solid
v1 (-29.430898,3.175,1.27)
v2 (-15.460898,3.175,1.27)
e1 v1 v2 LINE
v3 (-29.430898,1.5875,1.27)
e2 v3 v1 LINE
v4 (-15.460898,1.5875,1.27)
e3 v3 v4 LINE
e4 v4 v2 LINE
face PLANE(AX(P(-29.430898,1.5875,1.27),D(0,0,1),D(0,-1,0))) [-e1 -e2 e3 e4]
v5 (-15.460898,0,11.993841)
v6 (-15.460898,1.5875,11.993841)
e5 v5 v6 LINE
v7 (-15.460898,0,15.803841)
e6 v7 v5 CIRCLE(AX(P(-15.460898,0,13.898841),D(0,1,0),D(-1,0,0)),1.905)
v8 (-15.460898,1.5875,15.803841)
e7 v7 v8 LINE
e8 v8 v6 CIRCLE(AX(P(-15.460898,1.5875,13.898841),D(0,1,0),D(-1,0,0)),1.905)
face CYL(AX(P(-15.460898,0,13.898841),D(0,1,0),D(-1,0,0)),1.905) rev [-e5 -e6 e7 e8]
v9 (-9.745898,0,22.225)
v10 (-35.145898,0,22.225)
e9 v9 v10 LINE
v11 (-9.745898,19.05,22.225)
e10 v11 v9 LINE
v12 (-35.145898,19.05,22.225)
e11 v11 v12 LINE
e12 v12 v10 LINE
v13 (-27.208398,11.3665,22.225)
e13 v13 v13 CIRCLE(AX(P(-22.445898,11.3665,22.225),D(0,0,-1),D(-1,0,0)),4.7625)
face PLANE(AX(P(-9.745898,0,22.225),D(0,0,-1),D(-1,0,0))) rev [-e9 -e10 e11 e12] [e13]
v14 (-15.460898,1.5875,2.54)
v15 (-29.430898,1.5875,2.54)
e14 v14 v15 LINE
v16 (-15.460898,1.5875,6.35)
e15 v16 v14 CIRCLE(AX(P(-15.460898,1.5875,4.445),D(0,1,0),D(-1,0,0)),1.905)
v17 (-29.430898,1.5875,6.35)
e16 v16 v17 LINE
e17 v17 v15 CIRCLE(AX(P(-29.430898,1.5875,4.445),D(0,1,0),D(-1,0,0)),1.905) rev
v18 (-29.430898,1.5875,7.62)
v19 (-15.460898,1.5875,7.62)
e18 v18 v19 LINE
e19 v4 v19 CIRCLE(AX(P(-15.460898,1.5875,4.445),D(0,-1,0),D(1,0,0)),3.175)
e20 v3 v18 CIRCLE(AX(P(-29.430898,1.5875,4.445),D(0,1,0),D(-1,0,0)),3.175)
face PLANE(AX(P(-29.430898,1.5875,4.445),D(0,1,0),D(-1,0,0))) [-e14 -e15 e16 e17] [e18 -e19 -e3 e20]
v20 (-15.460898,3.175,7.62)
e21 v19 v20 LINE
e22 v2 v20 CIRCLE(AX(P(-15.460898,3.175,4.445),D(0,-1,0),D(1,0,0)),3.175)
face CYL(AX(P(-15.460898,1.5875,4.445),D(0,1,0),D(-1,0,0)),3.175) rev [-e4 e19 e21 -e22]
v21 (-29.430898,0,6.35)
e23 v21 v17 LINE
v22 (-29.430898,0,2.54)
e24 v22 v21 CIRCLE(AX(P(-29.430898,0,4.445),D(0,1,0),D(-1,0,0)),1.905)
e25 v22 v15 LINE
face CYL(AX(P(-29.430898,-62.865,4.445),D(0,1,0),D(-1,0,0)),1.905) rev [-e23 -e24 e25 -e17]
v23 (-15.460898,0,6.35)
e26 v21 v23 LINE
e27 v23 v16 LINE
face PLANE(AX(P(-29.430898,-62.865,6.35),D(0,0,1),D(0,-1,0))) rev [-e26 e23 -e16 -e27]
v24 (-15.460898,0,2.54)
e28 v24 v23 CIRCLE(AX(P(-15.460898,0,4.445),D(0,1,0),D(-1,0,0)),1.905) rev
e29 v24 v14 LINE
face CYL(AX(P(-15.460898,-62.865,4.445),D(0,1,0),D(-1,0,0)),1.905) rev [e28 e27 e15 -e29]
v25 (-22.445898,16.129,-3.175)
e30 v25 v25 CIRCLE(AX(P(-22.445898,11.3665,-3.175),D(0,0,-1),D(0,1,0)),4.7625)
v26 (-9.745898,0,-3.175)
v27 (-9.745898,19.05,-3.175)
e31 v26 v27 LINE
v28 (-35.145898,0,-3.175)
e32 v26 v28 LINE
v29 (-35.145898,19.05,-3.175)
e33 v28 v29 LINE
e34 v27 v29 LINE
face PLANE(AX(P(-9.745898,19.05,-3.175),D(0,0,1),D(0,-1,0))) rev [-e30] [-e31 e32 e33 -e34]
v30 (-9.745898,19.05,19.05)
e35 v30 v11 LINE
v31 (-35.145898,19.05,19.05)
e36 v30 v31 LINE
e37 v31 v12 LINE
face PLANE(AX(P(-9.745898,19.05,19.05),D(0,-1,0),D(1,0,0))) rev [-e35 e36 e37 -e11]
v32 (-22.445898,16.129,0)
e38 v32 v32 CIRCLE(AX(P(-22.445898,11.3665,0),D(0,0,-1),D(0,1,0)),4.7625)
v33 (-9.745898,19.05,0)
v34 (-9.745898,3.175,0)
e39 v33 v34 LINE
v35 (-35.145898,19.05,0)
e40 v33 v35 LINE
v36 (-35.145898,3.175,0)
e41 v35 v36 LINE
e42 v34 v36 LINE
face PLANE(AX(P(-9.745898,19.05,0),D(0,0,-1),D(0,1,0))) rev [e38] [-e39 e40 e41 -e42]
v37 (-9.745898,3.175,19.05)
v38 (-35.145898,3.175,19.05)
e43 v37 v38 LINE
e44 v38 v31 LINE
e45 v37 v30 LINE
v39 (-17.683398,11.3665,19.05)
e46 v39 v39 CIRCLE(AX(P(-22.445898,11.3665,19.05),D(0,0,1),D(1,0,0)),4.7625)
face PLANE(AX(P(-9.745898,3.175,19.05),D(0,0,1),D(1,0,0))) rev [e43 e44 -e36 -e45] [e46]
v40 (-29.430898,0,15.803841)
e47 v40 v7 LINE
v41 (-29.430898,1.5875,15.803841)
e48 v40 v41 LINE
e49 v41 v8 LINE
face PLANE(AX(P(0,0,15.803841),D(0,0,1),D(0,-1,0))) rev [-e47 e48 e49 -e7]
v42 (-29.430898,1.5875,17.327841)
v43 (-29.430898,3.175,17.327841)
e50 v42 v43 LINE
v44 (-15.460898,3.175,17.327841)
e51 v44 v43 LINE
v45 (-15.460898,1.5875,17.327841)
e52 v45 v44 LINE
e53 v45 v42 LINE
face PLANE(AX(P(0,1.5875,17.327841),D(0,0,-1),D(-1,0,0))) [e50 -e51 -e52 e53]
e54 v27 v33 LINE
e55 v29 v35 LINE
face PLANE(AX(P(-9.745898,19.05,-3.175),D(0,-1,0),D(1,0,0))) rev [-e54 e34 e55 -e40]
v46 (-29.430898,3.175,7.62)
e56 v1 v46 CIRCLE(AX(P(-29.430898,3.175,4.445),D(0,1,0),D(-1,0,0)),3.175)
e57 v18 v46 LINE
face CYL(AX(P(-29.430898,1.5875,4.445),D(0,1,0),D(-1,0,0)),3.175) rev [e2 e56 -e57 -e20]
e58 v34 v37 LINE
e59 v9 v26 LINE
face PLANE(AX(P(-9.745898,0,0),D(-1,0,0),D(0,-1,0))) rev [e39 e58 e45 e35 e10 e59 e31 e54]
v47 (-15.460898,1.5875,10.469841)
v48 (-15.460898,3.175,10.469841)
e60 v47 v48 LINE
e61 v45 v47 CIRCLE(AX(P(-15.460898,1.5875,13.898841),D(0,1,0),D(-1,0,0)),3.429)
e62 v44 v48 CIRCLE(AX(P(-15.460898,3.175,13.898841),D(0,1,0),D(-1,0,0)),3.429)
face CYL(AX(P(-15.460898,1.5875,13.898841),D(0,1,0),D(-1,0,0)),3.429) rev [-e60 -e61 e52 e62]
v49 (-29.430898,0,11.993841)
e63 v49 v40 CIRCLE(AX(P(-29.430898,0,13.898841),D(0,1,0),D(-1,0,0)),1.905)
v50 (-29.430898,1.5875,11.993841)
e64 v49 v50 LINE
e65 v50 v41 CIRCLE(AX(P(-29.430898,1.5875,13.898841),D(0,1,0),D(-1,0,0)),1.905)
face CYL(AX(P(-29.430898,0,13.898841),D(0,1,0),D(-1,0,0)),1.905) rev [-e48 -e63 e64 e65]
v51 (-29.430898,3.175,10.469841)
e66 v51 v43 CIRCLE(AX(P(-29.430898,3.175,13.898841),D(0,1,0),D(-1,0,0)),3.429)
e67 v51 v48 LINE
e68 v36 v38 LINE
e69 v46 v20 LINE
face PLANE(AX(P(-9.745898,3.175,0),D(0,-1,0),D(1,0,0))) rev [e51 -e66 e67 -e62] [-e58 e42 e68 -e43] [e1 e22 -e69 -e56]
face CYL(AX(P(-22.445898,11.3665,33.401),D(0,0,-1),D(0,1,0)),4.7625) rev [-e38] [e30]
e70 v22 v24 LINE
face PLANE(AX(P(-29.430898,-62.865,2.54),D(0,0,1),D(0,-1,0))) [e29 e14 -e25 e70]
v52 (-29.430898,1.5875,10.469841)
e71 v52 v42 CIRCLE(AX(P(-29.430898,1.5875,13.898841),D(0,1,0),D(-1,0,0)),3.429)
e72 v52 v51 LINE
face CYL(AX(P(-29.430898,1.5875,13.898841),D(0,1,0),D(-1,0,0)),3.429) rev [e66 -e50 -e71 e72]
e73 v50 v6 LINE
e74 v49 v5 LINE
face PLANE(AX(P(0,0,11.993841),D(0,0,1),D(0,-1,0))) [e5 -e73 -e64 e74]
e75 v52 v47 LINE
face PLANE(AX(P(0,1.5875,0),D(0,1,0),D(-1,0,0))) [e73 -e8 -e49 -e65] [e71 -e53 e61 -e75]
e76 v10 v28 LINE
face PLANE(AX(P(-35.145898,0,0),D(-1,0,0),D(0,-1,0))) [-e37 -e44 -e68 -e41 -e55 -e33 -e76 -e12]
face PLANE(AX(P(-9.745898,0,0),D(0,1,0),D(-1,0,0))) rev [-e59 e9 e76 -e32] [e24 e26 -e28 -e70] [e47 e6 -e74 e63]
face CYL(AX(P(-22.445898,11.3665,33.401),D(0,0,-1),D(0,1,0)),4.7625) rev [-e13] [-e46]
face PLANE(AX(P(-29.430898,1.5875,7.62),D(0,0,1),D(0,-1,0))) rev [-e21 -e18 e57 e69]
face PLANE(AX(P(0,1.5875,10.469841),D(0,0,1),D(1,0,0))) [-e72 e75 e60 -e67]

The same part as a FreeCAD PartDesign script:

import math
import FreeCAD as App
import Part
import Sketcher
Q = App.Units.Quantity

doc = App.newDocument("Part")
params = doc.addObject("Spreadsheet::Sheet", "Params")
for row, (alias, value) in enumerate([
    ("sketch1_height", "1 in"),
    ("sketch1_width", "0.75 in"),
    ("sketch1_width2", "0.625 in"),
    ("pad1_length", "1 in"),
    ("sketch2_diameter", "0.375 in"),
    ("pocket1_length", "1.44 in"),
    ("sketch3_radius", "0.075 in"),
    ("sketch3_width", "0.55 in"),
    ("pocket2_length", "2.6 in"),
    ("sketch4_radius", "0.125 in"),
    ("sketch4_width", "0.55 in"),
    ("pocket3_length", "0.0625 in"),
    ("sketch5_radius", "0.135 in"),
    ("sketch5_width", "0.55 in"),
    ("pocket4_length", "0.0625 in"),
    ("sketch6_radius", "0.075 in"),
    ("sketch6_width", "0.55 in"),
], start=1):
    params.set(f"A{row}", alias)
    params.set(f"B{row}", "=" + value)
    params.setAlias(f"B{row}", alias)

body = doc.addObject("PartDesign::Body", "Body")

# Sketch on YZ plane
sketch1 = body.newObject("Sketcher::SketchObject", "Sketch")
sketch1.AttachmentSupport = (doc.getObject("YZ_Plane"), [""])
sketch1.MapMode = "FlatFace"
sketch1.AttachmentOffset = App.Placement(App.Vector(0, 0, -35.145898), App.Rotation())
sketch1.addGeometry([
    Part.LineSegment(App.Vector(0, 22.225, 0), App.Vector(0, -3.175, 0)),  # 0
    Part.LineSegment(App.Vector(0, -3.175, 0), App.Vector(19.05, -3.175, 0)),  # 1
    Part.LineSegment(App.Vector(19.05, -3.175, 0), App.Vector(19.05, 0, 0)),  # 2
    Part.LineSegment(App.Vector(19.05, 0, 0), App.Vector(3.175, 0, 0)),  # 3
    Part.LineSegment(App.Vector(3.175, 0, 0), App.Vector(3.175, 19.05, 0)),  # 4
    Part.LineSegment(App.Vector(3.175, 19.05, 0), App.Vector(19.05, 19.05, 0)),  # 5
    Part.LineSegment(App.Vector(19.05, 19.05, 0), App.Vector(19.05, 22.225, 0)),  # 6
    Part.LineSegment(App.Vector(19.05, 22.225, 0), App.Vector(0, 22.225, 0)),  # 7
], False)
sketch1.addConstraint([
    Sketcher.Constraint("Coincident", 0, 2, 1, 1),
    Sketcher.Constraint("Coincident", 1, 2, 2, 1),
    Sketcher.Constraint("Coincident", 2, 2, 3, 1),
    Sketcher.Constraint("Coincident", 3, 2, 4, 1),
    Sketcher.Constraint("Coincident", 4, 2, 5, 1),
    Sketcher.Constraint("Coincident", 5, 2, 6, 1),
    Sketcher.Constraint("Coincident", 6, 2, 7, 1),
    Sketcher.Constraint("Coincident", 7, 2, 0, 1),
    Sketcher.Constraint("Vertical", 0),
    Sketcher.Constraint("Horizontal", 1),
    Sketcher.Constraint("Vertical", 2),
    Sketcher.Constraint("Horizontal", 3),
    Sketcher.Constraint("Vertical", 4),
    Sketcher.Constraint("Horizontal", 5),
    Sketcher.Constraint("Vertical", 6),
    Sketcher.Constraint("Horizontal", 7),
    Sketcher.Constraint("PointOnObject", 0, 2, -2),
    Sketcher.Constraint("PointOnObject", 2, 2, -1),
    Sketcher.Constraint("Vertical", 2, 2, 5, 2),
    Sketcher.Constraint("Equal", 7, 4),
    Sketcher.Constraint("Equal", 2, 6),
    Sketcher.Constraint("DistanceY", 0, 2, 0, 1, Q("1 in")),
    Sketcher.Constraint("DistanceX", 1, 1, 1, 2, Q("0.75 in")),
    Sketcher.Constraint("DistanceX", 3, 2, 3, 1, Q("0.625 in")),
])
sketch1.setExpression("Constraints[21]", "Params.sketch1_height")
sketch1.setExpression("Constraints[22]", "Params.sketch1_width")
sketch1.setExpression("Constraints[23]", "Params.sketch1_width2")
pad1 = body.newObject("PartDesign::Pad", "Pad")
pad1.Profile = sketch1
pad1.setExpression("Length", "Params.pad1_length")

# Sketch on XY plane
sketch2 = body.newObject("Sketcher::SketchObject", "Sketch001")
sketch2.AttachmentSupport = (doc.getObject("XY_Plane"), [""])
sketch2.MapMode = "FlatFace"
sketch2.AttachmentOffset = App.Placement(App.Vector(0, 0, -0.125 * 25.4), App.Rotation())
sketch2.addGeometry(Part.Circle(App.Vector(-22.445898, 11.3665, 0), App.Vector(0, 0, 1), 4.7625), False)
sketch2.addConstraint([
    Sketcher.Constraint("Diameter", 0, Q("0.375 in")),
    Sketcher.Constraint("DistanceY", -1, 1, 0, 3, Q("0.4475 in")),
    Sketcher.Constraint("DistanceX", 0, 3, -1, 1, 22.445898),
])
sketch2.setExpression("Constraints[0]", "Params.sketch2_diameter")
pocket1 = body.newObject("PartDesign::Pocket", "Pocket")
pocket1.Profile = sketch2
pocket1.setExpression("Length", "Params.pocket1_length")
pocket1.Reversed = True

# Sketch on XZ plane
sketch3 = body.newObject("Sketcher::SketchObject", "Sketch002")
sketch3.AttachmentSupport = (doc.getObject("XZ_Plane"), [""])
sketch3.MapMode = "FlatFace"
sketch3.AttachmentOffset = App.Placement(App.Vector(0, 0, -0.125 * 25.4), App.Rotation())
sketch3.addGeometry([
    Part.LineSegment(App.Vector(-15.460898, 2.54, 0), App.Vector(-29.430898, 2.54, 0)),
    Part.ArcOfCircle(Part.Circle(App.Vector(-29.430898, 4.445, 0), App.Vector(0, 0, 1), 1.905), math.radians(90), math.radians(270)),
    Part.LineSegment(App.Vector(-29.430898, 6.35, 0), App.Vector(-15.460898, 6.35, 0)),
    Part.ArcOfCircle(Part.Circle(App.Vector(-15.460898, 4.445, 0), App.Vector(0, 0, 1), 1.905), math.radians(-90), math.radians(90)),
], False)
sketch3.addConstraint([
    Sketcher.Constraint("Tangent", 0, 2, 1, 2),
    Sketcher.Constraint("Tangent", 1, 1, 2, 1),
    Sketcher.Constraint("Tangent", 2, 2, 3, 2),
    Sketcher.Constraint("Tangent", 3, 1, 0, 1),
    Sketcher.Constraint("Horizontal", 0),
    Sketcher.Constraint("Horizontal", 2),
    Sketcher.Constraint("Radius", 1, Q("0.075 in")),
    Sketcher.Constraint("DistanceX", 0, 2, 0, 1, Q("0.55 in")),
    Sketcher.Constraint("DistanceY", -1, 1, 0, 2, Q("0.1 in")),
    Sketcher.Constraint("DistanceX", 1, 3, -1, 1, 29.430898),
])
sketch3.setExpression("Constraints[6]", "Params.sketch3_radius")
sketch3.setExpression("Constraints[7]", "Params.sketch3_width")
pocket2 = body.newObject("PartDesign::Pocket", "Pocket001")
pocket2.Profile = sketch3
pocket2.setExpression("Length", "Params.pocket2_length")
pocket2.Reversed = True

# Sketch on XZ plane
sketch4 = body.newObject("Sketcher::SketchObject", "Sketch003")
sketch4.AttachmentSupport = (doc.getObject("XZ_Plane"), [""])
sketch4.MapMode = "FlatFace"
sketch4.AttachmentOffset = App.Placement(App.Vector(0, 0, -0.125 * 25.4), App.Rotation())
sketch4.addGeometry([
    Part.LineSegment(App.Vector(-15.460898, 1.27, 0), App.Vector(-29.430898, 1.27, 0)),
    Part.ArcOfCircle(Part.Circle(App.Vector(-29.430898, 4.445, 0), App.Vector(0, 0, 1), 3.175), math.radians(90), math.radians(270)),
    Part.LineSegment(App.Vector(-29.430898, 7.62, 0), App.Vector(-15.460898, 7.62, 0)),
    Part.ArcOfCircle(Part.Circle(App.Vector(-15.460898, 4.445, 0), App.Vector(0, 0, 1), 3.175), math.radians(-90), math.radians(90)),
], False)
sketch4.addConstraint([
    Sketcher.Constraint("Tangent", 0, 2, 1, 2),
    Sketcher.Constraint("Tangent", 1, 1, 2, 1),
    Sketcher.Constraint("Tangent", 2, 2, 3, 2),
    Sketcher.Constraint("Tangent", 3, 1, 0, 1),
    Sketcher.Constraint("Horizontal", 0),
    Sketcher.Constraint("Horizontal", 2),
    Sketcher.Constraint("Radius", 1, Q("0.125 in")),
    Sketcher.Constraint("DistanceX", 0, 2, 0, 1, Q("0.55 in")),
    Sketcher.Constraint("DistanceY", -1, 1, 1, 1, Q("0.3 in")),
    Sketcher.Constraint("DistanceX", 1, 3, -1, 1, 29.430898),
])
sketch4.setExpression("Constraints[6]", "Params.sketch4_radius")
sketch4.setExpression("Constraints[7]", "Params.sketch4_width")
pocket3 = body.newObject("PartDesign::Pocket", "Pocket002")
pocket3.Profile = sketch4
pocket3.setExpression("Length", "Params.pocket3_length")
pocket3.Reversed = True

# Sketch on XZ plane
sketch5 = body.newObject("Sketcher::SketchObject", "Sketch004")
sketch5.AttachmentSupport = (doc.getObject("XZ_Plane"), [""])
sketch5.MapMode = "FlatFace"
sketch5.AttachmentOffset = App.Placement(App.Vector(0, 0, -0.125 * 25.4), App.Rotation())
sketch5.addGeometry([
    Part.LineSegment(App.Vector(-29.430898, 17.327841, 0), App.Vector(-15.460898, 17.327841, 0)),
    Part.ArcOfCircle(Part.Circle(App.Vector(-15.460898, 13.898841, 0), App.Vector(0, 0, 1), 3.429), math.radians(-90), math.radians(90)),
    Part.LineSegment(App.Vector(-15.460898, 10.469841, 0), App.Vector(-29.430898, 10.469841, 0)),
    Part.ArcOfCircle(Part.Circle(App.Vector(-29.430898, 13.898841, 0), App.Vector(0, 0, 1), 3.429), math.radians(90), math.radians(270)),
], False)
sketch5.addConstraint([
    Sketcher.Constraint("Tangent", 0, 2, 1, 2),
    Sketcher.Constraint("Tangent", 1, 1, 2, 1),
    Sketcher.Constraint("Tangent", 2, 2, 3, 2),
    Sketcher.Constraint("Tangent", 3, 1, 0, 1),
    Sketcher.Constraint("Horizontal", 0),
    Sketcher.Constraint("Horizontal", 2),
    Sketcher.Constraint("Radius", 1, Q("0.135 in")),
    Sketcher.Constraint("DistanceX", 0, 1, 0, 2, Q("0.55 in")),
    Sketcher.Constraint("DistanceY", -1, 1, 1, 3, 13.898841),
    Sketcher.Constraint("DistanceX", 1, 3, -1, 1, 15.460898),
])
sketch5.setExpression("Constraints[6]", "Params.sketch5_radius")
sketch5.setExpression("Constraints[7]", "Params.sketch5_width")
pocket4 = body.newObject("PartDesign::Pocket", "Pocket003")
pocket4.Profile = sketch5
pocket4.setExpression("Length", "Params.pocket4_length")
pocket4.Reversed = True

# Sketch on XZ plane
sketch6 = body.newObject("Sketcher::SketchObject", "Sketch005")
sketch6.AttachmentSupport = (doc.getObject("XZ_Plane"), [""])
sketch6.MapMode = "FlatFace"
sketch6.AttachmentOffset = App.Placement(App.Vector(0, 0, -0.125 * 25.4), App.Rotation())
sketch6.addGeometry([
    Part.LineSegment(App.Vector(-15.460898, 11.993841, 0), App.Vector(-29.430898, 11.993841, 0)),
    Part.ArcOfCircle(Part.Circle(App.Vector(-29.430898, 13.898841, 0), App.Vector(0, 0, 1), 1.905), math.radians(90), math.radians(270)),
    Part.LineSegment(App.Vector(-29.430898, 15.803841, 0), App.Vector(-15.460898, 15.803841, 0)),
    Part.ArcOfCircle(Part.Circle(App.Vector(-15.460898, 13.898841, 0), App.Vector(0, 0, 1), 1.905), math.radians(-90), math.radians(90)),
], False)
sketch6.addConstraint([
    Sketcher.Constraint("Tangent", 0, 2, 1, 2),
    Sketcher.Constraint("Tangent", 1, 1, 2, 1),
    Sketcher.Constraint("Tangent", 2, 2, 3, 2),
    Sketcher.Constraint("Tangent", 3, 1, 0, 1),
    Sketcher.Constraint("Horizontal", 0),
    Sketcher.Constraint("Horizontal", 2),
    Sketcher.Constraint("Radius", 1, Q("0.075 in")),
    Sketcher.Constraint("DistanceX", 0, 2, 0, 1, Q("0.55 in")),
    Sketcher.Constraint("DistanceY", -1, 1, 1, 3, 13.898841),
    Sketcher.Constraint("DistanceX", 1, 3, -1, 1, 29.430898),
])
sketch6.setExpression("Constraints[6]", "Params.sketch6_radius")
sketch6.setExpression("Constraints[7]", "Params.sketch6_width")
pocket5 = body.newObject("PartDesign::Pocket", "Pocket004")
pocket5.Profile = sketch6
pocket5.Type = "ThroughAll"
pocket5.Reversed = True

doc.recompute()
